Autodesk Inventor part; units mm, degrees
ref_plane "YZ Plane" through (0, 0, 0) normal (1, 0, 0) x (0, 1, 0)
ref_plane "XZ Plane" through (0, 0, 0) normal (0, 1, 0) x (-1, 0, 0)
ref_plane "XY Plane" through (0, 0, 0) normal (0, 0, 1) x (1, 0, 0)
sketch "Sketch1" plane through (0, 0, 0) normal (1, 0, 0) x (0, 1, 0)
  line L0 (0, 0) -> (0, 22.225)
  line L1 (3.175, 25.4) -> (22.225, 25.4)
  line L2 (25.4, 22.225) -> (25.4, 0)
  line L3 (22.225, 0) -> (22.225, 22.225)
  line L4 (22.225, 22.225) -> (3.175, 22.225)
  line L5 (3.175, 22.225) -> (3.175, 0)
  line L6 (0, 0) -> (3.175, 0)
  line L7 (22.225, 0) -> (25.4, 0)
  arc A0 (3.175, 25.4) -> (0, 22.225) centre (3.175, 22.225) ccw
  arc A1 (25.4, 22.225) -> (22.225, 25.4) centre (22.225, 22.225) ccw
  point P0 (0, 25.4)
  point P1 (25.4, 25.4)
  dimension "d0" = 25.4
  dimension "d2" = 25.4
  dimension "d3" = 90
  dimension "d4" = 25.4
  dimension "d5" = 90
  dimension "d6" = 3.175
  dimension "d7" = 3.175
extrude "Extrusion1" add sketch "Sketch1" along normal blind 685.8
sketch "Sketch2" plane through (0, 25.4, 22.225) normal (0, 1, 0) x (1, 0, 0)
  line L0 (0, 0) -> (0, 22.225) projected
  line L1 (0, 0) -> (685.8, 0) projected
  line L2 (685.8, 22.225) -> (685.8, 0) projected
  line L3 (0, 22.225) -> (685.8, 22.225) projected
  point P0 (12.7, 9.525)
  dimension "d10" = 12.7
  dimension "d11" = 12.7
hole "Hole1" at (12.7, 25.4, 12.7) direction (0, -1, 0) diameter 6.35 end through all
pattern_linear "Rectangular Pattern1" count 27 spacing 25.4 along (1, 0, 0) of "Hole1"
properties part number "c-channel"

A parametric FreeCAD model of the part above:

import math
import FreeCAD as App
import Part
import Sketcher
from FreeCAD import Vector
Q = App.Units.Quantity

doc = App.newDocument("Part")
params = doc.addObject("Spreadsheet::Sheet", "Params")
for row, (alias, value) in enumerate([
    ("sketch1_radius", "0.125 in"),
    ("pad1_length", "27 in"),
    ("sketch2_diameter", "0.25 in"),
    ("hole_diameter", "0.25 in"),
    ("linearpattern_pitch", "1 in"),
], start=1):
    params.set(f"A{row}", alias)
    params.set(f"B{row}", "=" + value)
    params.setAlias(f"B{row}", alias)

body = doc.addObject("PartDesign::Body", "Body")

# Sketch on YZ plane
sketch1 = body.newObject("Sketcher::SketchObject", "Sketch")
sketch1.AttachmentSupport = (doc.getObject("YZ_Plane"), [""])
sketch1.MapMode = "FlatFace"
sketch1.addGeometry([
    Part.LineSegment(Vector(0, 22.2, 0), Vector(0, 0, 0)),  # 0
    Part.LineSegment(Vector(0, 0, 0), Vector(3.2, 0, 0)),  # 1
    Part.LineSegment(Vector(3.2, 0, 0), Vector(3.2, 22.2, 0)),  # 2
    Part.LineSegment(Vector(3.2, 22.2, 0), Vector(22.2, 22.2, 0)),  # 3
    Part.LineSegment(Vector(22.2, 22.2, 0), Vector(22.2, 0, 0)),  # 4
    Part.LineSegment(Vector(22.2, 0, 0), Vector(25.4, 0, 0)),  # 5
    Part.LineSegment(Vector(25.4, 0, 0), Vector(25.4, 22.2, 0)),  # 6
    Part.ArcOfCircle(Part.Circle(Vector(22.2, 22.2, 0), Vector(0, 0, 1), 3.2), math.radians(0), math.radians(90)),  # 7
    Part.LineSegment(Vector(22.2, 25.4, 0), Vector(3.2, 25.4, 0)),  # 8
    Part.ArcOfCircle(Part.Circle(Vector(3.2, 22.2, 0), Vector(0, 0, 1), 3.2), math.radians(90), math.radians(180)),  # 9
], False)
sketch1.addConstraint([
    Sketcher.Constraint("Coincident", 0, 2, 1, 1),
    Sketcher.Constraint("Coincident", 1, 2, 2, 1),
    Sketcher.Constraint("Coincident", 2, 2, 3, 1),
    Sketcher.Constraint("Coincident", 3, 2, 4, 1),
    Sketcher.Constraint("Coincident", 4, 2, 5, 1),
    Sketcher.Constraint("Coincident", 5, 2, 6, 1),
    Sketcher.Constraint("Tangent", 6, 2, 7, 1),
    Sketcher.Constraint("Tangent", 7, 2, 8, 1),
    Sketcher.Constraint("Tangent", 8, 2, 9, 1),
    Sketcher.Constraint("Tangent", 9, 2, 0, 1),
    Sketcher.Constraint("Vertical", 0),
    Sketcher.Constraint("Horizontal", 1),
    Sketcher.Constraint("Vertical", 2),
    Sketcher.Constraint("Horizontal", 3),
    Sketcher.Constraint("Vertical", 4),
    Sketcher.Constraint("Horizontal", 5),
    Sketcher.Constraint("Vertical", 6),
    Sketcher.Constraint("Horizontal", 8),
    Sketcher.Constraint("Coincident", 0, 2, -1, 1),
    Sketcher.Constraint("Coincident", 2, 2, 9, 3),
    Sketcher.Constraint("Coincident", 3, 2, 7, 3),
    Sketcher.Constraint("PointOnObject", 4, 2, -1),
    Sketcher.Constraint("DistanceX", -1, 1, 5, 2, Q("1 in")),
    Sketcher.Constraint("DistanceY", -1, 1, 7, 2, Q("1 in")),
    Sketcher.Constraint("Radius", 7, Q("0.125 in")),
])
sketch1.setExpression("Constraints[24]", "Params.sketch1_radius")
pad1 = body.newObject("PartDesign::Pad", "Pad")
pad1.Profile = sketch1
pad1.setExpression("Length", "Params.pad1_length")

# Sketch on XZ plane
sketch2 = body.newObject("Sketcher::SketchObject", "Sketch001")
sketch2.AttachmentSupport = (doc.getObject("XZ_Plane"), [""])
sketch2.MapMode = "FlatFace"
sketch2.AttachmentOffset = App.Placement(Vector(0, 0, -1 * 25.4), App.Rotation())
sketch2.addGeometry(Part.Circle(Vector(12.7, 12.7, 0), Vector(0, 0, 1), 3.2), False)
sketch2.addConstraint([
    Sketcher.Constraint("Diameter", 0, Q("0.25 in")),
    Sketcher.Constraint("DistanceX", -1, 1, 0, 3, Q("0.5 in")),
    Sketcher.Constraint("DistanceY", -1, 1, 0, 3, Q("0.5 in")),
])
sketch2.setExpression("Constraints[0]", "Params.sketch2_diameter")
doc.recompute()
hole = body.newObject("PartDesign::Hole", "Hole")
hole.Profile = sketch2
hole.ThreadType = "None"
hole.setExpression("Diameter", "Params.hole_diameter")
hole.DepthType = "ThroughAll"
hole.Reversed = True
doc.recompute()

linearpattern = body.newObject("PartDesign::LinearPattern", "LinearPattern")
linearpattern.Originals = [hole]
linearpattern.Direction = (doc.getObject("X_Axis"), [""])
linearpattern.Mode = "offset"
linearpattern.setExpression("Offset", "Params.linearpattern_pitch")
linearpattern.Occurrences = 27
body.Tip = linearpattern

doc.recompute()
